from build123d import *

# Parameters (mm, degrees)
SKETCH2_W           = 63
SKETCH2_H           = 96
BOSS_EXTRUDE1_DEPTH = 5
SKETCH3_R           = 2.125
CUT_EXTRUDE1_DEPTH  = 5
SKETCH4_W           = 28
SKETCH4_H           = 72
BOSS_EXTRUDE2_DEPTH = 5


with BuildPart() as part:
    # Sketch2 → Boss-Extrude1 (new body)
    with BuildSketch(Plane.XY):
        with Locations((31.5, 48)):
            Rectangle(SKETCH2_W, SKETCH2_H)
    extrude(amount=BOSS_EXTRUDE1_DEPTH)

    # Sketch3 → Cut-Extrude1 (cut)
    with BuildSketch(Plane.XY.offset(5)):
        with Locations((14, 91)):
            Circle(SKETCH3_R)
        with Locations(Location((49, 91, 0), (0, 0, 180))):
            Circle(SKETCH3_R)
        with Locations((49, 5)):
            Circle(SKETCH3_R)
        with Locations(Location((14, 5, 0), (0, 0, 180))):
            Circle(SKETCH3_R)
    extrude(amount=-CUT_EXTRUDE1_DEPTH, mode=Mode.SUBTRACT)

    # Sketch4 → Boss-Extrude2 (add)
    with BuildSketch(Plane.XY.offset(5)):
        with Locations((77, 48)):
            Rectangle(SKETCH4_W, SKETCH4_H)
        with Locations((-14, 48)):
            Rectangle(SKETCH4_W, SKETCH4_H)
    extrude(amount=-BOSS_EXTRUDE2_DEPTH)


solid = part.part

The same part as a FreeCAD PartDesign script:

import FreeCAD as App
import Part
import Sketcher

V = App.Vector


def add_polygon(sketch, points):
    """Adds a closed chain of lines whose ends are joined by coincident constraints."""
    first, n = sketch.GeometryCount, len(points)
    for a, b in zip(points, points[1:] + points[:1]):
        sketch.addGeometry(Part.LineSegment(App.Vector(*a, 0), App.Vector(*b, 0)), False)
    for i in range(n):
        sketch.addConstraint(Sketcher.Constraint("Coincident", first + i, 2, first + (i + 1) % n, 1))

doc = App.newDocument("Part")
body = doc.addObject("PartDesign::Body", "Body")

# Sketch on XY plane
sketch1 = body.newObject("Sketcher::SketchObject", "Sketch")
sketch1.AttachmentSupport = (doc.getObject("XY_Plane"), [""])
sketch1.MapMode = "FlatFace"
add_polygon(sketch1, [(0, 96), (0, 0), (63, 0), (63, 96)])  # lines 0-3
sketch1.addConstraint([
    Sketcher.Constraint("Vertical", 0),
    Sketcher.Constraint("Horizontal", 1),
    Sketcher.Constraint("Vertical", 2),
    Sketcher.Constraint("Horizontal", 3),
    Sketcher.Constraint("Coincident", 0, 2, -1, 1),
    Sketcher.Constraint("DistanceX", 1, 1, 1, 2, 63.0),
    Sketcher.Constraint("DistanceY", 0, 2, 0, 1, 96.0),
])
pad1 = body.newObject("PartDesign::Pad", "Pad")
pad1.Profile = sketch1
pad1.Length = 5

# Sketch on XY plane
sketch2 = body.newObject("Sketcher::SketchObject", "Sketch001")
sketch2.AttachmentSupport = (doc.getObject("XY_Plane"), [""])
sketch2.MapMode = "FlatFace"
sketch2.AttachmentOffset = App.Placement(V(0, 0, 5), App.Rotation())
sketch2.addGeometry([
    Part.Circle(V(14, 91, 0), V(0, 0, 1), 2.1),
    Part.Circle(V(49, 91, 0), V(0, 0, 1), 2.1),
    Part.Circle(V(49, 5, 0), V(0, 0, 1), 2.1),
    Part.Circle(V(14, 5, 0), V(0, 0, 1), 2.1),
], False)
sketch2.addConstraint([
    Sketcher.Constraint("Equal", 0, 1),
    Sketcher.Constraint("Equal", 1, 2),
    Sketcher.Constraint("Equal", 2, 3),
    Sketcher.Constraint("Horizontal", 0, 3, 1, 3),
    Sketcher.Constraint("Horizontal", 2, 3, 3, 3),
    Sketcher.Constraint("Vertical", 1, 3, 2, 3),
    Sketcher.Constraint("Vertical", 0, 3, 3, 3),
    Sketcher.Constraint("Diameter", 0, 4.25),
    Sketcher.Constraint("DistanceX", -1, 1, 0, 3, 14.0),
    Sketcher.Constraint("DistanceY", -1, 1, 0, 3, 91.0),
    Sketcher.Constraint("DistanceX", -1, 1, 1, 3, 49.0),
    Sketcher.Constraint("DistanceY", -1, 1, 2, 3, 5.0),
])
pocket1 = body.newObject("PartDesign::Pocket", "Pocket")
pocket1.Profile = sketch2
pocket1.Length = 5

# Sketch on XY plane
sketch3 = body.newObject("Sketcher::SketchObject", "Sketch002")
sketch3.AttachmentSupport = (doc.getObject("XY_Plane"), [""])
sketch3.MapMode = "FlatFace"
sketch3.AttachmentOffset = App.Placement(V(0, 0, 5), App.Rotation())
add_polygon(sketch3, [(63, 84), (63, 12), (91, 12), (91, 84)])  # lines 0-3
add_polygon(sketch3, [(-28, 84), (-28, 12), (0, 12), (0, 84)])  # lines 4-7
sketch3.addConstraint([
    Sketcher.Constraint("Vertical", 0),
    Sketcher.Constraint("Horizontal", 1),
    Sketcher.Constraint("Vertical", 2),
    Sketcher.Constraint("Horizontal", 3),
    Sketcher.Constraint("Vertical", 4),
    Sketcher.Constraint("Horizontal", 5),
    Sketcher.Constraint("Vertical", 6),
    Sketcher.Constraint("Horizontal", 7),
    Sketcher.Constraint("PointOnObject", 5, 2, -2),
    Sketcher.Constraint("Horizontal", 1, 2, 4, 2),
    Sketcher.Constraint("Horizontal", 3, 2, 6, 2),
    Sketcher.Constraint("Equal", 3, 5),
    Sketcher.Constraint("DistanceX", 1, 1, 1, 2, 28.0),
    Sketcher.Constraint("DistanceY", 0, 2, 0, 1, 72.0),
    Sketcher.Constraint("DistanceX", -1, 1, 0, 2, 63.0),
    Sketcher.Constraint("DistanceY", -1, 1, 0, 2, 12.0),
])
pad2 = body.newObject("PartDesign::Pad", "Pad001")
pad2.Profile = sketch3
pad2.Length = 5
pad2.Reversed = True

doc.recompute()
